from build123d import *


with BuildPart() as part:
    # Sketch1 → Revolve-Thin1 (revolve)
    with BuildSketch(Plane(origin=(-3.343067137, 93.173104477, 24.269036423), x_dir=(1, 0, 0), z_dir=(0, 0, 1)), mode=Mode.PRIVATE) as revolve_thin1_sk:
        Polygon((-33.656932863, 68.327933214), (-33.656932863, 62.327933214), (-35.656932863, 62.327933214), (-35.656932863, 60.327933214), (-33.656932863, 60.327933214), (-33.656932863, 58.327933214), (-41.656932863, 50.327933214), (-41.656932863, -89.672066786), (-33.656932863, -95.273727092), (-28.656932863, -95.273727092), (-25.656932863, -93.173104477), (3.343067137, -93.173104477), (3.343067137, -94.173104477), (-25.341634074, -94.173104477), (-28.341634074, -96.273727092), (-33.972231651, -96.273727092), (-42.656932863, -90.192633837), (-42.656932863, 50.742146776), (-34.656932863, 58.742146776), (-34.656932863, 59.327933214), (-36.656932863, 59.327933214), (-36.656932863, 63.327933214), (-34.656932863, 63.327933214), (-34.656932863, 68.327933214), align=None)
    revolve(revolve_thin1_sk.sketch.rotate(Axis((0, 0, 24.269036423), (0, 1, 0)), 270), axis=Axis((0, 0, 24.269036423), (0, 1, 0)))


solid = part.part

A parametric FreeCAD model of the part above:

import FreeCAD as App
import Part
import Sketcher

V = App.Vector
Q = App.Units.Quantity


def add_polygon(sketch, points):
    """Adds a closed chain of lines whose ends are joined by coincident constraints."""
    first, n = sketch.GeometryCount, len(points)
    for a, b in zip(points, points[1:] + points[:1]):
        sketch.addGeometry(Part.LineSegment(App.Vector(*a, 0), App.Vector(*b, 0)), False)
    for i in range(n):
        sketch.addConstraint(Sketcher.Constraint("Coincident", first + i, 2, first + (i + 1) % n, 1))

doc = App.newDocument("Part")
body = doc.addObject("PartDesign::Body", "Body")

# Sketch on XY plane
sketch1 = body.newObject("Sketcher::SketchObject", "Sketch")
sketch1.AttachmentSupport = (doc.getObject("XY_Plane"), [""])
sketch1.MapMode = "FlatFace"
sketch1.AttachmentOffset = App.Placement(V(0, 0, 24.269036), App.Rotation())
add_polygon(sketch1, [(-37, 155.5), (-37, 161.5), (-38, 161.5), (-38, 156.5), (-40, 156.5), (-40, 152.5), (-38, 152.5), (-38, 151.9), (-46, 143.9), (-46, 3), (-37.3, -3.1), (-31.7, -3.1), (-28.7, -1), (0, -1), (0, 0), (-29, 0), (-32, -2.1), (-37, -2.1), (-45, 3.5), (-45, 143.5), (-37, 151.5), (-37, 153.5), (-39, 153.5), (-39, 155.5)])  # lines 0-23
sketch1.addConstraint([
    Sketcher.Constraint("Vertical", 0),
    Sketcher.Constraint("Horizontal", 1),
    Sketcher.Constraint("Vertical", 2),
    Sketcher.Constraint("Horizontal", 3),
    Sketcher.Constraint("Vertical", 4),
    Sketcher.Constraint("Horizontal", 5),
    Sketcher.Constraint("Vertical", 6),
    Sketcher.Constraint("Vertical", 8),
    Sketcher.Constraint("Horizontal", 10),
    Sketcher.Constraint("Horizontal", 12),
    Sketcher.Constraint("Vertical", 13),
    Sketcher.Constraint("Horizontal", 14),
    Sketcher.Constraint("Horizontal", 16),
    Sketcher.Constraint("Vertical", 18),
    Sketcher.Constraint("Vertical", 20),
    Sketcher.Constraint("Horizontal", 21),
    Sketcher.Constraint("Vertical", 22),
    Sketcher.Constraint("Horizontal", 23),
    Sketcher.Constraint("Coincident", 13, 2, -1, 1),
    Sketcher.Constraint("Parallel", 11, 15),
    Sketcher.Constraint("Parallel", 9, 17),
    Sketcher.Constraint("Parallel", 7, 19),
    Sketcher.Constraint("Vertical", 2, 2, 5, 2),
    Sketcher.Constraint("Vertical", 0, 2, 16, 2),
    Sketcher.Constraint("Vertical", 16, 2, 19, 2),
    Sketcher.Constraint("Equal", 5, 21),
    Sketcher.Constraint("Equal", 16, 2),
    Sketcher.Constraint("Equal", 1, 13),
    Sketcher.Constraint("Equal", 23, 20),
    Sketcher.Constraint("Equal", 20, 22),
    Sketcher.Constraint("Equal", 11, 15),
    Sketcher.Constraint("Equal", 7, 19),
    Sketcher.Constraint("DistanceX", 1, 2, 1, 1, Q("1 mm")),
    Sketcher.Constraint("DistanceX", 3, 2, 3, 1, Q("2 mm")),
    Sketcher.Constraint("DistanceX", 14, 2, 14, 1, Q("29 mm")),
    Sketcher.Constraint("DistanceX", 16, 2, 16, 1, Q("5 mm")),
    Sketcher.Constraint("DistanceY", 0, 1, 0, 2, Q("6 mm")),
    Sketcher.Constraint("DistanceY", 4, 2, 4, 1, Q("4 mm")),
    Sketcher.Constraint("DistanceY", 18, 1, 18, 2, Q("140 mm")),
    Sketcher.Constraint("Angle", 7, Q("-135 deg")),
    Sketcher.Constraint("Angle", 9, Q("-35 deg")),
    Sketcher.Constraint("Angle", 11, Q("35 deg")),
    Sketcher.Constraint("DistanceX", 0, 2, -1, 1, Q("37 mm")),
    Sketcher.Constraint("DistanceX", 7, 2, -1, 1, Q("46 mm")),
    Sketcher.Constraint("DistanceX", 12, 1, 12, 2, Q("28.684701 mm")),
    Sketcher.Constraint("DistanceY", 8, 2, 8, 1, Q("140.934781 mm")),
    Sketcher.Constraint("DistanceX", 9, 2, -1, 1, Q("37.315299 mm")),
])
revolution = body.newObject("PartDesign::Revolution", "Revolution")
revolution.Profile = sketch1
revolution.ReferenceAxis = (sketch1, ["V_Axis"])
revolution.Angle = 360

doc.recompute()
